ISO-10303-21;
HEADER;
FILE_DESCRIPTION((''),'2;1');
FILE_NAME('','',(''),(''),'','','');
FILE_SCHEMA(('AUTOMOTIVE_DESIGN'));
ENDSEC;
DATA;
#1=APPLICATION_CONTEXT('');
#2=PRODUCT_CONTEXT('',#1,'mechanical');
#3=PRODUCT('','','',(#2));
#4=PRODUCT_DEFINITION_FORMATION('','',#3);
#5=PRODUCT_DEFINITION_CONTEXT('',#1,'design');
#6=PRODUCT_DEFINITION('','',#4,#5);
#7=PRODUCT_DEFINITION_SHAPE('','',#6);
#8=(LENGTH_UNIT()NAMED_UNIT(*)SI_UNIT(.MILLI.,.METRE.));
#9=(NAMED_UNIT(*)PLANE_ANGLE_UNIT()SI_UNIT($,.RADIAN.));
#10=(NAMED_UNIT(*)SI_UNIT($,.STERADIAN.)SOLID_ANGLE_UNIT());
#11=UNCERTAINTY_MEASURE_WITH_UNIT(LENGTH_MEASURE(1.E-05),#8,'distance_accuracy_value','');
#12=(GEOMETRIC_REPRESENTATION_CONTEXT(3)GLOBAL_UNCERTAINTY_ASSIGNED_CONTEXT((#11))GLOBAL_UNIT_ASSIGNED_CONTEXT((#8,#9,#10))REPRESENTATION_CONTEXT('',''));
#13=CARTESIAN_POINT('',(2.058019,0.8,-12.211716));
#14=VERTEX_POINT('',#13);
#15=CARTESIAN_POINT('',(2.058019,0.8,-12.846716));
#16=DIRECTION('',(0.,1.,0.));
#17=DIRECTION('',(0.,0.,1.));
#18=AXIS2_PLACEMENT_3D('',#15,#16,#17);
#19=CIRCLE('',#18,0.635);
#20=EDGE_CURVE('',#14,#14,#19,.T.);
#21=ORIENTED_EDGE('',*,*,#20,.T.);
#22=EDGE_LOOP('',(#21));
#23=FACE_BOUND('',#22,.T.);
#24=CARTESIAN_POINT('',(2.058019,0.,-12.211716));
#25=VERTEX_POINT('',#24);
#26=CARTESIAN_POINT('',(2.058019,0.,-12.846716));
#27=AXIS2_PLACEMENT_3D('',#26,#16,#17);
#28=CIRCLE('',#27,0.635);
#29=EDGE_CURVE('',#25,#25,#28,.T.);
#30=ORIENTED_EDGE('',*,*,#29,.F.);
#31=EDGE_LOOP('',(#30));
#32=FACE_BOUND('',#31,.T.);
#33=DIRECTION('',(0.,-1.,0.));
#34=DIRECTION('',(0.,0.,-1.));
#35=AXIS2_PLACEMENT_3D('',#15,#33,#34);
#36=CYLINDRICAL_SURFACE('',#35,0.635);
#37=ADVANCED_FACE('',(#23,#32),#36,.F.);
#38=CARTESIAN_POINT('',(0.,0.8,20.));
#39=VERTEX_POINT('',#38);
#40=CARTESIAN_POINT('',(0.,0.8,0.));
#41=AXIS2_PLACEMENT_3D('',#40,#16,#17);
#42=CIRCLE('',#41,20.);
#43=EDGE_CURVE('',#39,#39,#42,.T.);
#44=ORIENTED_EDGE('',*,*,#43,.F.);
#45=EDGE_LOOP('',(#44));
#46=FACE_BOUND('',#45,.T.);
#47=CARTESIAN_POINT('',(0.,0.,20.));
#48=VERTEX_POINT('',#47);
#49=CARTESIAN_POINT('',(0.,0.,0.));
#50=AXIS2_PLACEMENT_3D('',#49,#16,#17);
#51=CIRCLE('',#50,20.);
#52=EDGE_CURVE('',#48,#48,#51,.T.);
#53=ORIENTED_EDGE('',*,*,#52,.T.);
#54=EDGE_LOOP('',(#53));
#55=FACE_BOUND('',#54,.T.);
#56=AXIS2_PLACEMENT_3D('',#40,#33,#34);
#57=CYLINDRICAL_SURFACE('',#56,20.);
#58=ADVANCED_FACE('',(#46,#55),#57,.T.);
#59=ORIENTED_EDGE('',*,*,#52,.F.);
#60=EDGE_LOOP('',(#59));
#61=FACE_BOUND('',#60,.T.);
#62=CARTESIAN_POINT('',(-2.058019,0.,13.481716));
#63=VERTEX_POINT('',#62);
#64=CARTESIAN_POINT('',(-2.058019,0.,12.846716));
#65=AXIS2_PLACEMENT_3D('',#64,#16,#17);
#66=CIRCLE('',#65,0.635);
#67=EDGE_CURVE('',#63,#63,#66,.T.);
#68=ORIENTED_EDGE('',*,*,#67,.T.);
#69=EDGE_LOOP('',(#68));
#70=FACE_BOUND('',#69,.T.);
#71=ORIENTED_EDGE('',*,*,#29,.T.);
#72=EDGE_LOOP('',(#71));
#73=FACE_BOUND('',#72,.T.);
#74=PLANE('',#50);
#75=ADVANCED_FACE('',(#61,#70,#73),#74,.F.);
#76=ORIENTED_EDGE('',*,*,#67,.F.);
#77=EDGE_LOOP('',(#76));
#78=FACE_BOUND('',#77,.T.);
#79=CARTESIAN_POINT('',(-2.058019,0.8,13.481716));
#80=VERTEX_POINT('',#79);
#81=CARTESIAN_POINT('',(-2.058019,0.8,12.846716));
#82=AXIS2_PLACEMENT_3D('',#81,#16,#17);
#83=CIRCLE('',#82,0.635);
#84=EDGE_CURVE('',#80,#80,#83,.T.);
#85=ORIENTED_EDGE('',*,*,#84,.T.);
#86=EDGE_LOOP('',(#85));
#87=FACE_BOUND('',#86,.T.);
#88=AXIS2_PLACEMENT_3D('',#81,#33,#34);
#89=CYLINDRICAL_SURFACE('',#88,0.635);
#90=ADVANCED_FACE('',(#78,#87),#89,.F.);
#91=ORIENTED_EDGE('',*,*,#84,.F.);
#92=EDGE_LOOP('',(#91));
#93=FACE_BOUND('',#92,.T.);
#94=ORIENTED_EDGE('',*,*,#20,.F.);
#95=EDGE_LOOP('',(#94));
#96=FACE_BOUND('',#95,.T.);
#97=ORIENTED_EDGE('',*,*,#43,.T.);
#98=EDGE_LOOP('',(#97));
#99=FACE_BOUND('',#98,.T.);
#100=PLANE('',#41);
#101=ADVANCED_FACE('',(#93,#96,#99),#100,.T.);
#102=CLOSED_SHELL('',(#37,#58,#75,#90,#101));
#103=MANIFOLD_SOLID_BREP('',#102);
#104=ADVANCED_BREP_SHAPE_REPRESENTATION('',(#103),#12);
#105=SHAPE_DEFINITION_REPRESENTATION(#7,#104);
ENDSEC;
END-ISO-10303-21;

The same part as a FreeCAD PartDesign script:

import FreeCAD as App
import Part
import Sketcher
from FreeCAD import Vector
Q = App.Units.Quantity

doc = App.newDocument("Part")
body = doc.addObject("PartDesign::Body", "Body")

# Sketch on XZ plane
sketch1 = body.newObject("Sketcher::SketchObject", "Sketch")
sketch1.AttachmentSupport = (doc.getObject("XZ_Plane"), [""])
sketch1.MapMode = "FlatFace"
sketch1.addGeometry(Part.Circle(Vector(0, 0, 0), Vector(0, 0, 1), 20), False)
sketch1.addGeometry(Part.Circle(Vector(-2.1, 12.8, 0), Vector(0, 0, 1), 0.6), False)
sketch1.addGeometry(Part.Circle(Vector(2.1, -12.8, 0), Vector(0, 0, 1), 0.6), False)
sketch1.addConstraint(Sketcher.Constraint("Coincident", 0, 3, -1, 1))
sketch1.addConstraint(Sketcher.Constraint("Equal", 1, 2))
sketch1.addConstraint(Sketcher.Constraint("Symmetric", 1, 3, 2, 3, -1, 1))
sketch1.addConstraint(Sketcher.Constraint("Diameter", 0, Q("40 mm")))
sketch1.addConstraint(Sketcher.Constraint("Diameter", 1, Q("1.27 mm")))
sketch1.addConstraint(Sketcher.Constraint("DistanceX", 1, 3, -1, 1, Q("2.058019 mm")))
sketch1.addConstraint(Sketcher.Constraint("DistanceY", 2, 3, 1, 3, Q("25.693431 mm")))
pad1 = body.newObject("PartDesign::Pad", "Pad")
pad1.Profile = sketch1
pad1.Length = 0.8
pad1.Reversed = True

doc.recompute()
